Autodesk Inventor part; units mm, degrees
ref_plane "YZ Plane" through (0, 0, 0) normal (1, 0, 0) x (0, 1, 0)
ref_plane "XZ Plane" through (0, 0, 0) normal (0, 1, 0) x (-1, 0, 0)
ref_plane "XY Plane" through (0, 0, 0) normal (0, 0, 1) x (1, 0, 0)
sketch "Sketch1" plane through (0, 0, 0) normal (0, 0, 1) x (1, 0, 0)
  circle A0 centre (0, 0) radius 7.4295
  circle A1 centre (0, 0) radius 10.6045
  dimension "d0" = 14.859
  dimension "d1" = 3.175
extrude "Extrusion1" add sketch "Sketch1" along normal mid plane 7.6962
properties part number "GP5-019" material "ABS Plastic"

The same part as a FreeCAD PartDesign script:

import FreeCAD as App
import Part
import Sketcher
Q = App.Units.Quantity

doc = App.newDocument("Part")
params = doc.addObject("Spreadsheet::Sheet", "Params")
for row, (alias, value) in enumerate([
    ("sketch1_diameter", "0.585 in"),
    ("sketch1_diameter2", "0.835 in"),
    ("pad1_length", "0.303 in"),
], start=1):
    params.set(f"A{row}", alias)
    params.set(f"B{row}", "=" + value)
    params.setAlias(f"B{row}", alias)

body = doc.addObject("PartDesign::Body", "Body")

# Sketch on XY plane
sketch1 = body.newObject("Sketcher::SketchObject", "Sketch")
sketch1.AttachmentSupport = (doc.getObject("XY_Plane"), [""])
sketch1.MapMode = "FlatFace"
sketch1.addGeometry(Part.Circle(App.Vector(0, 0, 0), App.Vector(0, 0, 1), 11), False)
sketch1.addGeometry(Part.Circle(App.Vector(0, 0, 0), App.Vector(0, 0, 1), 7), False)
sketch1.addConstraint(Sketcher.Constraint("Coincident", 0, 3, -1, 1))
sketch1.addConstraint(Sketcher.Constraint("Coincident", 1, 3, -1, 1))
sketch1.addConstraint(Sketcher.Constraint("Diameter", 1, Q("0.585 in")))
sketch1.addConstraint(Sketcher.Constraint("Diameter", 0, Q("0.835 in")))
sketch1.setExpression("Constraints[2]", "Params.sketch1_diameter")
sketch1.setExpression("Constraints[3]", "Params.sketch1_diameter2")
pad1 = body.newObject("PartDesign::Pad", "Pad")
pad1.Profile = sketch1
pad1.setExpression("Length", "Params.pad1_length")
pad1.Midplane = True

doc.recompute()
